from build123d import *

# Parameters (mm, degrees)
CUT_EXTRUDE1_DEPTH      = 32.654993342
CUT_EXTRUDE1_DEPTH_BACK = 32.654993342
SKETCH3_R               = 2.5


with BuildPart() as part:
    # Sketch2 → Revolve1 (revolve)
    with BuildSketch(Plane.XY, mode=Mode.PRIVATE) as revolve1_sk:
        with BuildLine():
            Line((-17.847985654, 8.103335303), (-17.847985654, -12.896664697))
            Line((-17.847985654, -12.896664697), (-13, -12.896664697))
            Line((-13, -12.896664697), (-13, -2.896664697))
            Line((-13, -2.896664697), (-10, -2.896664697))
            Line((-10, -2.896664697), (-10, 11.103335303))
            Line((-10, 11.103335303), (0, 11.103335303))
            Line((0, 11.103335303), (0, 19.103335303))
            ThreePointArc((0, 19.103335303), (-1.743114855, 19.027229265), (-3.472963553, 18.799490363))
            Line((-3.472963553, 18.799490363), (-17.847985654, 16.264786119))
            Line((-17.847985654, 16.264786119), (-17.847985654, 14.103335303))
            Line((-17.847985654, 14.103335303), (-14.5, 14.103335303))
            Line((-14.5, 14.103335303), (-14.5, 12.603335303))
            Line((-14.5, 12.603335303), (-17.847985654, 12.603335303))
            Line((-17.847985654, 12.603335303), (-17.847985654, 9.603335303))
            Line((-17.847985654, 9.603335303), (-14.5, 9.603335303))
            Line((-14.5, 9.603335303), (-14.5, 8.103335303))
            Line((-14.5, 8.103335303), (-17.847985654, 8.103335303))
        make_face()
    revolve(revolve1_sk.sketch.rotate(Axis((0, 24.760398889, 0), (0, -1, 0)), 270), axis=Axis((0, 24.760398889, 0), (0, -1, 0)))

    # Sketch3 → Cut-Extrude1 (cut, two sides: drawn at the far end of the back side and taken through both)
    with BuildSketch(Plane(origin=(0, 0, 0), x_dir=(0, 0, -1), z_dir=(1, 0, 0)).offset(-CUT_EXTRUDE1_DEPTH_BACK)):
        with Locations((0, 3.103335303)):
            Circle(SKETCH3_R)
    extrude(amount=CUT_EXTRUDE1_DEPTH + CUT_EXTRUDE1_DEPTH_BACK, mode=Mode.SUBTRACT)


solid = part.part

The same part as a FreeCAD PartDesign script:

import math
import FreeCAD as App
import Part
import Sketcher
from FreeCAD import Vector
Q = App.Units.Quantity

doc = App.newDocument("Part")
body = doc.addObject("PartDesign::Body", "Body")

sketch1 = doc.addObject("Sketcher::SketchObject", "Sketch")
body.addObject(sketch1)
sketch1.AttachmentSupport = (doc.XY_Plane, [""])
sketch1.MapMode = "FlatFace"
sketch1.addGeometry(Part.LineSegment(Vector(-17.8, 8.1, 0), Vector(-17.8, -12.9, 0)), False)
sketch1.addGeometry(Part.LineSegment(Vector(-17.8, -12.9, 0), Vector(-13, -12.9, 0)), False)
sketch1.addGeometry(Part.LineSegment(Vector(-13, -12.9, 0), Vector(-13, -2.9, 0)), False)
sketch1.addGeometry(Part.LineSegment(Vector(-13, -2.9, 0), Vector(-10, -2.9, 0)), False)
sketch1.addGeometry(Part.LineSegment(Vector(-10, -2.9, 0), Vector(-10, 11.1, 0)), False)
sketch1.addGeometry(Part.LineSegment(Vector(-10, 11.1, 0), Vector(0, 11.1, 0)), False)
sketch1.addGeometry(Part.LineSegment(Vector(0, 11.1, 0), Vector(0, 19.1, 0)), False)
sketch1.addGeometry(Part.ArcOfCircle(Part.Circle(Vector(0, -0.9, 0), Vector(0, 0, 1), 20), math.radians(90), math.radians(100)), False)
sketch1.addGeometry(Part.LineSegment(Vector(-3.5, 18.8, 0), Vector(-17.8, 16.3, 0)), False)
sketch1.addGeometry(Part.LineSegment(Vector(-17.8, 16.3, 0), Vector(-17.8, 14.1, 0)), False)
sketch1.addGeometry(Part.LineSegment(Vector(-17.8, 14.1, 0), Vector(-14.5, 14.1, 0)), False)
sketch1.addGeometry(Part.LineSegment(Vector(-14.5, 14.1, 0), Vector(-14.5, 12.6, 0)), False)
sketch1.addGeometry(Part.LineSegment(Vector(-14.5, 12.6, 0), Vector(-17.8, 12.6, 0)), False)
sketch1.addGeometry(Part.LineSegment(Vector(-17.8, 12.6, 0), Vector(-17.8, 9.6, 0)), False)
sketch1.addGeometry(Part.LineSegment(Vector(-17.8, 9.6, 0), Vector(-14.5, 9.6, 0)), False)
sketch1.addGeometry(Part.LineSegment(Vector(-14.5, 9.6, 0), Vector(-14.5, 8.1, 0)), False)
sketch1.addGeometry(Part.LineSegment(Vector(-14.5, 8.1, 0), Vector(-17.8, 8.1, 0)), False)
sketch1.addConstraint(Sketcher.Constraint("Coincident", 0, 2, 1, 1))
sketch1.addConstraint(Sketcher.Constraint("Coincident", 1, 2, 2, 1))
sketch1.addConstraint(Sketcher.Constraint("Coincident", 2, 2, 3, 1))
sketch1.addConstraint(Sketcher.Constraint("Coincident", 3, 2, 4, 1))
sketch1.addConstraint(Sketcher.Constraint("Coincident", 4, 2, 5, 1))
sketch1.addConstraint(Sketcher.Constraint("Coincident", 5, 2, 6, 1))
sketch1.addConstraint(Sketcher.Constraint("Coincident", 6, 2, 7, 1))
sketch1.addConstraint(Sketcher.Constraint("Tangent", 7, 2, 8, 1))
sketch1.addConstraint(Sketcher.Constraint("Coincident", 8, 2, 9, 1))
sketch1.addConstraint(Sketcher.Constraint("Coincident", 9, 2, 10, 1))
sketch1.addConstraint(Sketcher.Constraint("Coincident", 10, 2, 11, 1))
sketch1.addConstraint(Sketcher.Constraint("Coincident", 11, 2, 12, 1))
sketch1.addConstraint(Sketcher.Constraint("Coincident", 12, 2, 13, 1))
sketch1.addConstraint(Sketcher.Constraint("Coincident", 13, 2, 14, 1))
sketch1.addConstraint(Sketcher.Constraint("Coincident", 14, 2, 15, 1))
sketch1.addConstraint(Sketcher.Constraint("Coincident", 15, 2, 16, 1))
sketch1.addConstraint(Sketcher.Constraint("Coincident", 16, 2, 0, 1))
sketch1.addConstraint(Sketcher.Constraint("Vertical", 0))
sketch1.addConstraint(Sketcher.Constraint("Horizontal", 1))
sketch1.addConstraint(Sketcher.Constraint("Vertical", 2))
sketch1.addConstraint(Sketcher.Constraint("Horizontal", 3))
sketch1.addConstraint(Sketcher.Constraint("Vertical", 4))
sketch1.addConstraint(Sketcher.Constraint("Horizontal", 5))
sketch1.addConstraint(Sketcher.Constraint("Vertical", 6))
sketch1.addConstraint(Sketcher.Constraint("Vertical", 9))
sketch1.addConstraint(Sketcher.Constraint("Horizontal", 10))
sketch1.addConstraint(Sketcher.Constraint("Vertical", 11))
sketch1.addConstraint(Sketcher.Constraint("Horizontal", 12))
sketch1.addConstraint(Sketcher.Constraint("Vertical", 13))
sketch1.addConstraint(Sketcher.Constraint("Horizontal", 14))
sketch1.addConstraint(Sketcher.Constraint("Vertical", 15))
sketch1.addConstraint(Sketcher.Constraint("Horizontal", 16))
sketch1.addConstraint(Sketcher.Constraint("PointOnObject", 7, 3, -2))
sketch1.addConstraint(Sketcher.Constraint("PointOnObject", 5, 2, -2))
sketch1.addConstraint(Sketcher.Constraint("Vertical", 0, 2, 8, 2))
sketch1.addConstraint(Sketcher.Constraint("Vertical", 9, 2, 12, 2))
sketch1.addConstraint(Sketcher.Constraint("Vertical", 11, 2, 14, 2))
sketch1.addConstraint(Sketcher.Constraint("Equal", 5, 2))
sketch1.addConstraint(Sketcher.Constraint("Equal", 3, 13))
sketch1.addConstraint(Sketcher.Constraint("Equal", 11, 15))
sketch1.addConstraint(Sketcher.Constraint("Radius", 7, Q("20 mm")))
sketch1.addConstraint(Sketcher.Constraint("DistanceX", 3, 1, 3, 2, Q("3 mm")))
sketch1.addConstraint(Sketcher.Constraint("DistanceX", 5, 1, 5, 2, Q("10 mm")))
sketch1.addConstraint(Sketcher.Constraint("DistanceY", 0, 2, 0, 1, Q("21 mm")))
sketch1.addConstraint(Sketcher.Constraint("DistanceY", 4, 1, 4, 2, Q("14 mm")))
sketch1.addConstraint(Sketcher.Constraint("DistanceY", 6, 1, 6, 2, Q("8 mm")))
sketch1.addConstraint(Sketcher.Constraint("Angle", 8, Q("-170 deg")))
sketch1.addConstraint(Sketcher.Constraint("DistanceY", 11, 2, 11, 1, Q("1.5 mm")))
sketch1.addConstraint(Sketcher.Constraint("DistanceX", 10, 2, -1, 1, Q("14.5 mm")))
sketch1.addConstraint(Sketcher.Constraint("DistanceY", 9, 2, 9, 1, Q("2.161451 mm")))
sketch1.addConstraint(Sketcher.Constraint("DistanceY", -1, 1, 7, 2, Q("18.79949 mm")))
revolution = doc.addObject("PartDesign::Revolution", "Revolution")
body.addObject(revolution)
revolution.Profile = sketch1
revolution.ReferenceAxis = (sketch1, ["V_Axis"])
revolution.Angle = 360

sketch2 = doc.addObject("Sketcher::SketchObject", "Sketch001")
body.addObject(sketch2)
sketch2.AttachmentSupport = (doc.YZ_Plane, [""])
sketch2.MapMode = "FlatFace"
sketch2.addGeometry(Part.Circle(Vector(3.1, 0, 0), Vector(0, 0, 1), 2.5), False)
sketch2.addConstraint(Sketcher.Constraint("PointOnObject", 0, 3, -1))
sketch2.addConstraint(Sketcher.Constraint("Diameter", 0, Q("5 mm")))
sketch2.addConstraint(Sketcher.Constraint("DistanceX", -1, 1, 0, 3, Q("3.103335 mm")))
pocket1 = doc.addObject("PartDesign::Pocket", "Pocket")
body.addObject(pocket1)
pocket1.Profile = sketch2
pocket1.Type = "ThroughAll"
pocket1.Midplane = True

doc.recompute()
